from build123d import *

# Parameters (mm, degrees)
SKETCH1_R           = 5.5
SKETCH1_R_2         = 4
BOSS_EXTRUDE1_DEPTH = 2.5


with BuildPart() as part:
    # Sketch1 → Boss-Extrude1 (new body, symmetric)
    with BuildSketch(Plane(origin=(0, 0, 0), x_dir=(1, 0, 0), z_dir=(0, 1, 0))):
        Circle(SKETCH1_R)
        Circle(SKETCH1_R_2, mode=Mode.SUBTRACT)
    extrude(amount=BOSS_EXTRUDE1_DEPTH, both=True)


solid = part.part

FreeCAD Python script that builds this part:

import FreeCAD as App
import Part
import Sketcher

doc = App.newDocument("Part")
params = doc.addObject("Spreadsheet::Sheet", "Params")
for row, (alias, value) in enumerate([
    ("sketch1_diameter", "11 mm"),
    ("sketch1_diameter2", "8 mm"),
    ("pad1_length", "5 mm"),
], start=1):
    params.set(f"A{row}", alias)
    params.set(f"B{row}", "=" + value)
    params.setAlias(f"B{row}", alias)

body = doc.addObject("PartDesign::Body", "Body")

# Sketch on XZ plane
sketch1 = doc.addObject("Sketcher::SketchObject", "Sketch")
body.addObject(sketch1)
sketch1.AttachmentSupport = (doc.XZ_Plane, [""])
sketch1.MapMode = "FlatFace"
sketch1.addGeometry([
    Part.Circle(App.Vector(0, 0, 0), App.Vector(0, 0, 1), 5.5),
    Part.Circle(App.Vector(0, 0, 0), App.Vector(0, 0, 1), 4),
], False)
sketch1.addConstraint([
    Sketcher.Constraint("Coincident", 0, 3, -1, 1),
    Sketcher.Constraint("Coincident", 1, 3, -1, 1),
    Sketcher.Constraint("Diameter", 0, 11.0),
    Sketcher.Constraint("Diameter", 1, 8.0),
])
sketch1.setExpression("Constraints[2]", "Params.sketch1_diameter")
sketch1.setExpression("Constraints[3]", "Params.sketch1_diameter2")
pad1 = doc.addObject("PartDesign::Pad", "Pad")
body.addObject(pad1)
pad1.Profile = sketch1
pad1.setExpression("Length", "Params.pad1_length")
pad1.Midplane = True

doc.recompute()
